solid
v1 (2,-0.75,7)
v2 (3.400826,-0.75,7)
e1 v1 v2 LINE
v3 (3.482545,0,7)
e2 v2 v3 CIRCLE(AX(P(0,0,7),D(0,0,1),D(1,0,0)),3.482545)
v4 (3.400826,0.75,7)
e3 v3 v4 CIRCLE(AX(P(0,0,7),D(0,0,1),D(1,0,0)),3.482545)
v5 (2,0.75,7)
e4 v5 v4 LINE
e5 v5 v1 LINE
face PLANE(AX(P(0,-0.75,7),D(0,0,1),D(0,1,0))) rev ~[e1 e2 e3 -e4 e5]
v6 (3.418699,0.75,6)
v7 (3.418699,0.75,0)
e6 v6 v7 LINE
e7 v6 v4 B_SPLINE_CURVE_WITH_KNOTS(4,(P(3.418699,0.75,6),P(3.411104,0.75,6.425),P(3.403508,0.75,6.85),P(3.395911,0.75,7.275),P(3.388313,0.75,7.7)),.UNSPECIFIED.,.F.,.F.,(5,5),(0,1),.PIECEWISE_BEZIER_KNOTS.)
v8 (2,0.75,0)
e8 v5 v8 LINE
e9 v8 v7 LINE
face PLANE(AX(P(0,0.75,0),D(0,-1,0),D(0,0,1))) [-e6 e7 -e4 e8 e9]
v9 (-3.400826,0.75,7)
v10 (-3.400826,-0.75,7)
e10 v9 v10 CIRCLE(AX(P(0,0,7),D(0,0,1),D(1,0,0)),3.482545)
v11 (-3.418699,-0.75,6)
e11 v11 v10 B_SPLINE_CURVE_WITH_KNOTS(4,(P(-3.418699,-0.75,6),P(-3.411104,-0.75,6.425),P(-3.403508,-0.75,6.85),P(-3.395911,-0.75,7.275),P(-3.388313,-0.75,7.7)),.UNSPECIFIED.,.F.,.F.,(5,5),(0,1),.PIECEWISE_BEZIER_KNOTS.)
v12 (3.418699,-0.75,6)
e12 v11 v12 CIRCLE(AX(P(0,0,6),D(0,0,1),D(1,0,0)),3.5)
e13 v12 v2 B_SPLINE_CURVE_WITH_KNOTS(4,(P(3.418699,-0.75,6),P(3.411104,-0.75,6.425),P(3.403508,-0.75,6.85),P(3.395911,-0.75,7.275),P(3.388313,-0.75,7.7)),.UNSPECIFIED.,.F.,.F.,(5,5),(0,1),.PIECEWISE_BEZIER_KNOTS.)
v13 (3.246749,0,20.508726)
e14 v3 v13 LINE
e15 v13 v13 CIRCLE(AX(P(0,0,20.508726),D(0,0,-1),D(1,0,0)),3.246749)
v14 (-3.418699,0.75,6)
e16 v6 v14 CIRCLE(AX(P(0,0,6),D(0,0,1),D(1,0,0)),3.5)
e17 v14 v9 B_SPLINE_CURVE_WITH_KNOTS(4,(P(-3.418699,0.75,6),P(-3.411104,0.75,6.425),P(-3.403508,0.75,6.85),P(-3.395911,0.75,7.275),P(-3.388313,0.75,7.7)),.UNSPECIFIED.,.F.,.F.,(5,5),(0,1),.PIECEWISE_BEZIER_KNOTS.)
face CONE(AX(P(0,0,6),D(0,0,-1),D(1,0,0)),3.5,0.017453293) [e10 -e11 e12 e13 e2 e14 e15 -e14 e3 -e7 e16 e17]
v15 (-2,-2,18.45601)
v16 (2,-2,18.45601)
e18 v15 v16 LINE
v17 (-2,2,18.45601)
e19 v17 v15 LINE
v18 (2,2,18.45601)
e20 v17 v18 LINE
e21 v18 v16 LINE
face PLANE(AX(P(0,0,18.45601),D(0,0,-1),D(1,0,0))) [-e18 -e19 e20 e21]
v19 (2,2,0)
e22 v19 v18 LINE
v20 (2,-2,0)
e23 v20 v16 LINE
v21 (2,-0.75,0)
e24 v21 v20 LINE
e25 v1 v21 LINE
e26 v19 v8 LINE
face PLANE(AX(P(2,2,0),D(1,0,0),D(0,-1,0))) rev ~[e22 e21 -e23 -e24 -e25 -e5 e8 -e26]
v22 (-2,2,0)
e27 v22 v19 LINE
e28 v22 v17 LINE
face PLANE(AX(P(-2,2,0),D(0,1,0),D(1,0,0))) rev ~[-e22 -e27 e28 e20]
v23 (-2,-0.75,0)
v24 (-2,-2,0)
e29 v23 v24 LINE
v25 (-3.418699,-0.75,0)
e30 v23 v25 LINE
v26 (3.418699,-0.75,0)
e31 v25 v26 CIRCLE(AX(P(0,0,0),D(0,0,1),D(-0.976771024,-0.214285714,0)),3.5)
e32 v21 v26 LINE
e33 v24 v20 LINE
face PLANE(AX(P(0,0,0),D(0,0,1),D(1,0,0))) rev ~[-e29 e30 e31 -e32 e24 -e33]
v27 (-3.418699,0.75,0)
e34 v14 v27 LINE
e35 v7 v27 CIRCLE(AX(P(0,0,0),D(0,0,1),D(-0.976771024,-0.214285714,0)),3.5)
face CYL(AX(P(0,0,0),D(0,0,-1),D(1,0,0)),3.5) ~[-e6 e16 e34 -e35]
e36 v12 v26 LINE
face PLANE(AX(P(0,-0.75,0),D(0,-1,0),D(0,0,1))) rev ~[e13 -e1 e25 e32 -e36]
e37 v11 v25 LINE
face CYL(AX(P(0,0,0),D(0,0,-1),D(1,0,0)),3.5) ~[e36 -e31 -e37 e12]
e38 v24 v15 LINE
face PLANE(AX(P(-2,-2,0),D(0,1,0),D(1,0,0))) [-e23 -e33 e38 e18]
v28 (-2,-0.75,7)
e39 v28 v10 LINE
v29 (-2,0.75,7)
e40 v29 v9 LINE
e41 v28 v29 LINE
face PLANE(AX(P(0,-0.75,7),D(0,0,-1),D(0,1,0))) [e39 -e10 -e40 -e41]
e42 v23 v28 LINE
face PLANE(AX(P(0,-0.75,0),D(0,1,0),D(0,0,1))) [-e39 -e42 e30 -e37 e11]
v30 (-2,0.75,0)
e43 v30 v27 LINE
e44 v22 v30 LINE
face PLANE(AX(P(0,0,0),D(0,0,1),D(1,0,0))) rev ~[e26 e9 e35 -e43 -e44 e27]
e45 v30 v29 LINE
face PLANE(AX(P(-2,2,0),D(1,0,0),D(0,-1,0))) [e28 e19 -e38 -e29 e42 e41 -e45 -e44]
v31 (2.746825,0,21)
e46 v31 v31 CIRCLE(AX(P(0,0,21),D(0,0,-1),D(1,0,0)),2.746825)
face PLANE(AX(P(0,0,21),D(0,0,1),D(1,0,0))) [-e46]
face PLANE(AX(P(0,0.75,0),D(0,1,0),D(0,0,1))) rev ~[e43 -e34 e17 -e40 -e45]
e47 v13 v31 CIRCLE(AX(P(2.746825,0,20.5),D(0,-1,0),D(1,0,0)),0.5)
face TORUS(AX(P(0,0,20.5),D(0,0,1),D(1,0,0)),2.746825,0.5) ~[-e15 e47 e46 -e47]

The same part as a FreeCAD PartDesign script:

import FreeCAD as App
import Part
import Sketcher

V = App.Vector
Q = App.Units.Quantity


def edges_at(feature, points):
    """Names of the edges that pass closest to the given points."""
    edges = feature.Shape.Edges
    near = lambda p: min(range(len(edges)), key=lambda i: edges[i].distToShape(Part.Vertex(*p))[0])
    return sorted({f"Edge{near(p) + 1}" for p in points})

doc = App.newDocument("Part")
body = doc.addObject("PartDesign::Body", "Body")

# Sketch on XY plane
sketch1 = doc.addObject("Sketcher::SketchObject", "Sketch")
body.addObject(sketch1)
sketch1.AttachmentSupport = (doc.XY_Plane, [""])
sketch1.MapMode = "FlatFace"
sketch1.addGeometry(Part.Circle(V(0, 0, 0), V(0, 0, 1), 3.5), False)
sketch1.addConstraint([
    Sketcher.Constraint("Coincident", 0, 3, -1, 1),
    Sketcher.Constraint("Diameter", 0, Q("7 mm")),
])
pad1 = doc.addObject("PartDesign::Pad", "Pad")
body.addObject(pad1)
pad1.Profile = sketch1
pad1.Length = 6

# Sketch on XY plane
sketch2 = doc.addObject("Sketcher::SketchObject", "Sketch001")
body.addObject(sketch2)
sketch2.AttachmentSupport = (doc.XY_Plane, [""])
sketch2.MapMode = "FlatFace"
sketch2.AttachmentOffset = App.Placement(V(0, 0, 6), App.Rotation())
sketch2.addGeometry(Part.Circle(V(0, 0, 0), V(0, 0, 1), 3.5), False)
sketch2.addConstraint([
    Sketcher.Constraint("Coincident", 0, 3, -1, 1),
    Sketcher.Constraint("Diameter", 0, Q("7 mm")),
])
pad2 = doc.addObject("PartDesign::Pad", "Pad001")
body.addObject(pad2)
pad2.Profile = sketch2
pad2.Length = 15
pad2.TaperAngle = -1

# Sketch on XY plane
sketch3 = doc.addObject("Sketcher::SketchObject", "Sketch002")
body.addObject(sketch3)
sketch3.AttachmentSupport = (doc.XY_Plane, [""])
sketch3.MapMode = "FlatFace"
sketch3.addGeometry([
    Part.LineSegment(V(-2, -2, 0), V(-2, 2, 0)),
    Part.LineSegment(V(-2, 2, 0), V(2, 2, 0)),
    Part.LineSegment(V(2, 2, 0), V(2, -2, 0)),
    Part.LineSegment(V(2, -2, 0), V(-2, -2, 0)),
], False)
sketch3.addConstraint([
    Sketcher.Constraint("Coincident", 0, 2, 1, 1),
    Sketcher.Constraint("Coincident", 1, 2, 2, 1),
    Sketcher.Constraint("Coincident", 2, 2, 3, 1),
    Sketcher.Constraint("Coincident", 3, 2, 0, 1),
    Sketcher.Constraint("Vertical", 0),
    Sketcher.Constraint("Horizontal", 1),
    Sketcher.Constraint("Vertical", 2),
    Sketcher.Constraint("Horizontal", 3),
    Sketcher.Constraint("Symmetric", 0, 2, 2, 2, -1, 1),
    Sketcher.Constraint("Equal", 3, 0),
    Sketcher.Constraint("DistanceX", 1, 1, 1, 2, Q("4 mm")),
])
pocket1 = doc.addObject("PartDesign::Pocket", "Pocket")
body.addObject(pocket1)
pocket1.Profile = sketch3
pocket1.Length = 18.45601
pocket1.Reversed = True

# Sketch on YZ plane
sketch4 = doc.addObject("Sketcher::SketchObject", "Sketch003")
body.addObject(sketch4)
sketch4.AttachmentSupport = (doc.YZ_Plane, [""])
sketch4.MapMode = "FlatFace"
sketch4.addGeometry([
    Part.LineSegment(V(-0.8, 7, 0), V(-0.8, 0, 0)),
    Part.LineSegment(V(-0.8, 0, 0), V(0.8, 0, 0)),
    Part.LineSegment(V(0.8, 0, 0), V(0.8, 7, 0)),
    Part.LineSegment(V(0.8, 7, 0), V(-0.8, 7, 0)),
], False)
sketch4.addConstraint([
    Sketcher.Constraint("Coincident", 0, 2, 1, 1),
    Sketcher.Constraint("Coincident", 1, 2, 2, 1),
    Sketcher.Constraint("Coincident", 2, 2, 3, 1),
    Sketcher.Constraint("Coincident", 3, 2, 0, 1),
    Sketcher.Constraint("Vertical", 0),
    Sketcher.Constraint("Horizontal", 1),
    Sketcher.Constraint("Vertical", 2),
    Sketcher.Constraint("Horizontal", 3),
    Sketcher.Constraint("Symmetric", 0, 2, 1, 2, -1, 1),
    Sketcher.Constraint("DistanceY", 0, 2, 0, 1, Q("7 mm")),
    Sketcher.Constraint("DistanceX", 1, 1, 1, 2, Q("1.5 mm")),
])
pocket2 = doc.addObject("PartDesign::Pocket", "Pocket001")
body.addObject(pocket2)
pocket2.Profile = sketch4
pocket2.Type = "ThroughAll"
pocket2.Midplane = True
doc.recompute()

fillet = doc.addObject("PartDesign::Fillet", "Fillet")
body.addObject(fillet)
fillet.Base = (pocket2, edges_at(pocket2, [(-3.238, 0, 21)]))
fillet.Radius = 0.5

doc.recompute()
